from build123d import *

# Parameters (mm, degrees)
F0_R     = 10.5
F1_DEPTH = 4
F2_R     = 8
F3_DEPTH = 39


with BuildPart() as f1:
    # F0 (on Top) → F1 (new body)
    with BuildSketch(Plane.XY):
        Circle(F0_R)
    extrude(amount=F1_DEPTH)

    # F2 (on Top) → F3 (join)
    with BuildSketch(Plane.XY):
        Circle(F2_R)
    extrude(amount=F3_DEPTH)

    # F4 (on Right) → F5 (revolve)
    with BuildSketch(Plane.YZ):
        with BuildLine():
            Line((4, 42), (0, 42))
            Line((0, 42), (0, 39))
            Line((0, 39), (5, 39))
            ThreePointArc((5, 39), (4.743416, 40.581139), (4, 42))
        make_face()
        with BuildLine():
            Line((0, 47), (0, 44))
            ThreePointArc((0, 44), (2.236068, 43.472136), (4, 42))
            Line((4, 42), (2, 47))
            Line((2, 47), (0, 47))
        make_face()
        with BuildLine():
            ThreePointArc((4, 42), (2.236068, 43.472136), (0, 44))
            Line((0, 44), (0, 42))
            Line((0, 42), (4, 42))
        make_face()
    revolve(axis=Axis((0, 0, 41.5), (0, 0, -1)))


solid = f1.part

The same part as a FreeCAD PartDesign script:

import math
import FreeCAD as App
import Part
import Sketcher

V = App.Vector

doc = App.newDocument("Part")
params = doc.addObject("Spreadsheet::Sheet", "Params")
for row, (alias, value) in enumerate([
    ("sketch1_diameter", "21 mm"),
    ("pad1_length", "4 mm"),
    ("sketch2_diameter", "16 mm"),
    ("pad2_length", "39 mm"),
    ("sketch3_width", "5 mm"),
    ("sketch3_width2", "2 mm"),
    ("sketch3_height", "8 mm"),
    ("revolution_angle", "360 deg"),
], start=1):
    params.set(f"A{row}", alias)
    params.set(f"B{row}", "=" + value)
    params.setAlias(f"B{row}", alias)

body = doc.addObject("PartDesign::Body", "Body")

# Sketch on XY plane
sketch1 = body.newObject("Sketcher::SketchObject", "Sketch")
sketch1.AttachmentSupport = (doc.getObject("XY_Plane"), [""])
sketch1.MapMode = "FlatFace"
sketch1.addGeometry(Part.Circle(V(0, 0, 0), V(0, 0, 1), 10.5), False)
sketch1.addConstraint(Sketcher.Constraint("Coincident", 0, 3, -1, 1))
sketch1.addConstraint(Sketcher.Constraint("Diameter", 0, 21.0))
sketch1.setExpression("Constraints[1]", "Params.sketch1_diameter")
pad1 = body.newObject("PartDesign::Pad", "Pad")
pad1.Profile = sketch1
pad1.setExpression("Length", "Params.pad1_length")

# Sketch on XY plane
sketch2 = body.newObject("Sketcher::SketchObject", "Sketch001")
sketch2.AttachmentSupport = (doc.getObject("XY_Plane"), [""])
sketch2.MapMode = "FlatFace"
sketch2.addGeometry(Part.Circle(V(0, 0, 0), V(0, 0, 1), 8), False)
sketch2.addConstraint(Sketcher.Constraint("Coincident", 0, 3, -1, 1))
sketch2.addConstraint(Sketcher.Constraint("Diameter", 0, 16.0))
sketch2.setExpression("Constraints[1]", "Params.sketch2_diameter")
pad2 = body.newObject("PartDesign::Pad", "Pad001")
pad2.Profile = sketch2
pad2.setExpression("Length", "Params.pad2_length")

# Sketch on YZ plane
sketch3 = body.newObject("Sketcher::SketchObject", "Sketch002")
sketch3.AttachmentSupport = (doc.getObject("YZ_Plane"), [""])
sketch3.MapMode = "FlatFace"
sketch3.addGeometry(Part.LineSegment(V(0, 39, 0), V(5, 39, 0)), False)
sketch3.addGeometry(Part.ArcOfCircle(Part.Circle(V(-0.000008, 38.999997, 0), V(0, 0, 1), 5.000008), math.radians(0.000029), math.radians(36.869869)), False)
sketch3.addGeometry(Part.LineSegment(V(4, 42, 0), V(2, 47, 0)), False)
sketch3.addGeometry(Part.LineSegment(V(2, 47, 0), V(0, 47, 0)), False)
sketch3.addGeometry(Part.LineSegment(V(0, 47, 0), V(0, 39, 0)), False)
sketch3.addConstraint(Sketcher.Constraint("Coincident", 0, 2, 1, 1))
sketch3.addConstraint(Sketcher.Constraint("Coincident", 1, 2, 2, 1))
sketch3.addConstraint(Sketcher.Constraint("Coincident", 2, 2, 3, 1))
sketch3.addConstraint(Sketcher.Constraint("Coincident", 3, 2, 4, 1))
sketch3.addConstraint(Sketcher.Constraint("Coincident", 4, 2, 0, 1))
sketch3.addConstraint(Sketcher.Constraint("Horizontal", 0))
sketch3.addConstraint(Sketcher.Constraint("Horizontal", 3))
sketch3.addConstraint(Sketcher.Constraint("Vertical", 4))
sketch3.addConstraint(Sketcher.Constraint("Coincident", 4, 2, 1, 3))
sketch3.addConstraint(Sketcher.Constraint("PointOnObject", 3, 2, -2))
sketch3.addConstraint(Sketcher.Constraint("DistanceX", 0, 1, 0, 2, 5.0))
sketch3.addConstraint(Sketcher.Constraint("DistanceX", 3, 2, 3, 1, 2.0))
sketch3.addConstraint(Sketcher.Constraint("DistanceY", 4, 2, 4, 1, 8.0))
sketch3.addConstraint(Sketcher.Constraint("DistanceY", -1, 1, 0, 2, 39.0))
sketch3.addConstraint(Sketcher.Constraint("DistanceX", -1, 1, 1, 2, 4.0))
sketch3.setExpression("Constraints[10]", "Params.sketch3_width")
sketch3.setExpression("Constraints[11]", "Params.sketch3_width2")
sketch3.setExpression("Constraints[12]", "Params.sketch3_height")
revolution = body.newObject("PartDesign::Revolution", "Revolution")
revolution.Profile = sketch3
revolution.ReferenceAxis = (sketch3, ["V_Axis"])
revolution.setExpression("Angle", "Params.revolution_angle")

doc.recompute()
